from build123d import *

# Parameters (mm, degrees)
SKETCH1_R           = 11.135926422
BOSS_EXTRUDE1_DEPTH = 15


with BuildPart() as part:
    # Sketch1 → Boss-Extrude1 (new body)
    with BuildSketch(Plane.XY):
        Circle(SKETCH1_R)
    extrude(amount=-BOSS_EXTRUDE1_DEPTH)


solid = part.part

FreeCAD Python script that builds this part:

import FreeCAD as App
import Part
import Sketcher
from FreeCAD import Vector
Q = App.Units.Quantity

doc = App.newDocument("Part")
body = doc.addObject("PartDesign::Body", "Body")

# Sketch on XY plane
sketch1 = body.newObject("Sketcher::SketchObject", "Sketch")
sketch1.AttachmentSupport = (doc.getObject("XY_Plane"), [""])
sketch1.MapMode = "FlatFace"
sketch1.addGeometry(Part.Circle(Vector(0, 0, 0), Vector(0, 0, 1), 11.135926), False)
sketch1.addConstraint([
    Sketcher.Constraint("Coincident", 0, 3, -1, 1),
    Sketcher.Constraint("Diameter", 0, Q("22.271853 mm")),
])
pad1 = body.newObject("PartDesign::Pad", "Pad")
pad1.Profile = sketch1
pad1.Length = 15
pad1.Reversed = True

doc.recompute()
